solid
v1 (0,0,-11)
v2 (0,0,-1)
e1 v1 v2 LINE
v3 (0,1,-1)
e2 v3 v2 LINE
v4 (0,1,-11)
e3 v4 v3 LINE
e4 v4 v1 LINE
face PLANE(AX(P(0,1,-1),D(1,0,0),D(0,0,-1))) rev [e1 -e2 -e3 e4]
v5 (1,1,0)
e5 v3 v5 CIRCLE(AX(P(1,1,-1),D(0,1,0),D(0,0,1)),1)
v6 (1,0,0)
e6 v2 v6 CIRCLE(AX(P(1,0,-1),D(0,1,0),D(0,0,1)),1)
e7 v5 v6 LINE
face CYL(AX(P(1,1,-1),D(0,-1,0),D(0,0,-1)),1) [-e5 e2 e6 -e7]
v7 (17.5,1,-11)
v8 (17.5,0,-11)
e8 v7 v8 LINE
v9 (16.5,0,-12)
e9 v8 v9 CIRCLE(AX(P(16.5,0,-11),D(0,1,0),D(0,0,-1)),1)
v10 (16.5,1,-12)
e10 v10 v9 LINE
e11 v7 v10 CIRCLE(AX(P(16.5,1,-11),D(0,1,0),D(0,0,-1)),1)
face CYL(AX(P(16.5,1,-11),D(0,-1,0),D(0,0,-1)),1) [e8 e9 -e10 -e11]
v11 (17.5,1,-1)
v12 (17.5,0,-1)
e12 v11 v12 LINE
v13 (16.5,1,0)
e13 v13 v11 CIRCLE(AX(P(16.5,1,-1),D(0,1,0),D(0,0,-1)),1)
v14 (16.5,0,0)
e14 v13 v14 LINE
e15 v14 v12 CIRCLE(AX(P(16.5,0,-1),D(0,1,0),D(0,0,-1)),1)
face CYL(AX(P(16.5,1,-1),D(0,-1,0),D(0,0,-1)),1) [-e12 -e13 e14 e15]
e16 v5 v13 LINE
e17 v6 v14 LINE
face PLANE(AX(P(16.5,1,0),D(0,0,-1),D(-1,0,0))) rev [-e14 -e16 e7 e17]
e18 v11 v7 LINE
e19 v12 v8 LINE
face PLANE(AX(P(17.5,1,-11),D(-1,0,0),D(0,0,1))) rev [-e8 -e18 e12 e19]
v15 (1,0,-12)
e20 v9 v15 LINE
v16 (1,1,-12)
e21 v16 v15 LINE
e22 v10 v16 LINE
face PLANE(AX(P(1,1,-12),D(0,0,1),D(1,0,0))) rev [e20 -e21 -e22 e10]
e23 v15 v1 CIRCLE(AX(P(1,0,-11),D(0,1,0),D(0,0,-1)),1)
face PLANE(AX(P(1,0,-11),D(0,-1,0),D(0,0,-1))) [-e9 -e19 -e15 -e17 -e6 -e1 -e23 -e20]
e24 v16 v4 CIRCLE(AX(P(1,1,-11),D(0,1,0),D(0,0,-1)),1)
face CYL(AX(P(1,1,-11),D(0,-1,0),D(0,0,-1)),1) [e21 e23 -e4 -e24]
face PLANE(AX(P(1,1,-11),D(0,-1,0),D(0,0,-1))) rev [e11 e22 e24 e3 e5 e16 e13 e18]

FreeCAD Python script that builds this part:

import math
import FreeCAD as App
import Part
import Sketcher

V = App.Vector

doc = App.newDocument("Part")
body = doc.addObject("PartDesign::Body", "Body")

sketch1 = doc.addObject("Sketcher::SketchObject", "Sketch")
body.addObject(sketch1)
sketch1.AttachmentSupport = (doc.XZ_Plane, [""])
sketch1.MapMode = "FlatFace"
sketch1.addGeometry(Part.LineSegment(V(0, -11, 0), V(0, -1, 0)), False)
sketch1.addGeometry(Part.ArcOfCircle(Part.Circle(V(1, -1, 0), V(0, 0, 1), 1), math.radians(90), math.radians(180)), False)
sketch1.addGeometry(Part.LineSegment(V(1, 0, 0), V(16.5, 0, 0)), False)
sketch1.addGeometry(Part.ArcOfCircle(Part.Circle(V(16.5, -1, 0), V(0, 0, 1), 1), math.radians(0), math.radians(90)), False)
sketch1.addGeometry(Part.LineSegment(V(17.5, -1, 0), V(17.5, -11, 0)), False)
sketch1.addGeometry(Part.ArcOfCircle(Part.Circle(V(16.5, -11, 0), V(0, 0, 1), 1), math.radians(-90), math.radians(0)), False)
sketch1.addGeometry(Part.LineSegment(V(16.5, -12, 0), V(1, -12, 0)), False)
sketch1.addGeometry(Part.ArcOfCircle(Part.Circle(V(1, -11, 0), V(0, 0, 1), 1), math.radians(-180), math.radians(-90)), False)
sketch1.addConstraint(Sketcher.Constraint("Tangent", 0, 2, 1, 2))
sketch1.addConstraint(Sketcher.Constraint("Tangent", 1, 1, 2, 1))
sketch1.addConstraint(Sketcher.Constraint("Tangent", 2, 2, 3, 2))
sketch1.addConstraint(Sketcher.Constraint("Tangent", 3, 1, 4, 1))
sketch1.addConstraint(Sketcher.Constraint("Tangent", 4, 2, 5, 2))
sketch1.addConstraint(Sketcher.Constraint("Tangent", 5, 1, 6, 1))
sketch1.addConstraint(Sketcher.Constraint("Tangent", 6, 2, 7, 2))
sketch1.addConstraint(Sketcher.Constraint("Tangent", 7, 1, 0, 1))
sketch1.addConstraint(Sketcher.Constraint("Vertical", 0))
sketch1.addConstraint(Sketcher.Constraint("Horizontal", 2))
sketch1.addConstraint(Sketcher.Constraint("Vertical", 4))
sketch1.addConstraint(Sketcher.Constraint("Horizontal", 6))
sketch1.addConstraint(Sketcher.Constraint("Equal", 1, 3))
sketch1.addConstraint(Sketcher.Constraint("Equal", 3, 5))
sketch1.addConstraint(Sketcher.Constraint("Equal", 5, 7))
sketch1.addConstraint(Sketcher.Constraint("PointOnObject", 0, 2, -2))
sketch1.addConstraint(Sketcher.Constraint("PointOnObject", 1, 1, -1))
sketch1.addConstraint(Sketcher.Constraint("Radius", 1, 1.0))
sketch1.addConstraint(Sketcher.Constraint("DistanceY", 0, 1, 0, 2, 10.0))
sketch1.addConstraint(Sketcher.Constraint("DistanceX", 2, 1, 2, 2, 15.5))
pad1 = doc.addObject("PartDesign::Pad", "Pad")
body.addObject(pad1)
pad1.Profile = sketch1
pad1.Length = 1
pad1.Reversed = True

doc.recompute()
